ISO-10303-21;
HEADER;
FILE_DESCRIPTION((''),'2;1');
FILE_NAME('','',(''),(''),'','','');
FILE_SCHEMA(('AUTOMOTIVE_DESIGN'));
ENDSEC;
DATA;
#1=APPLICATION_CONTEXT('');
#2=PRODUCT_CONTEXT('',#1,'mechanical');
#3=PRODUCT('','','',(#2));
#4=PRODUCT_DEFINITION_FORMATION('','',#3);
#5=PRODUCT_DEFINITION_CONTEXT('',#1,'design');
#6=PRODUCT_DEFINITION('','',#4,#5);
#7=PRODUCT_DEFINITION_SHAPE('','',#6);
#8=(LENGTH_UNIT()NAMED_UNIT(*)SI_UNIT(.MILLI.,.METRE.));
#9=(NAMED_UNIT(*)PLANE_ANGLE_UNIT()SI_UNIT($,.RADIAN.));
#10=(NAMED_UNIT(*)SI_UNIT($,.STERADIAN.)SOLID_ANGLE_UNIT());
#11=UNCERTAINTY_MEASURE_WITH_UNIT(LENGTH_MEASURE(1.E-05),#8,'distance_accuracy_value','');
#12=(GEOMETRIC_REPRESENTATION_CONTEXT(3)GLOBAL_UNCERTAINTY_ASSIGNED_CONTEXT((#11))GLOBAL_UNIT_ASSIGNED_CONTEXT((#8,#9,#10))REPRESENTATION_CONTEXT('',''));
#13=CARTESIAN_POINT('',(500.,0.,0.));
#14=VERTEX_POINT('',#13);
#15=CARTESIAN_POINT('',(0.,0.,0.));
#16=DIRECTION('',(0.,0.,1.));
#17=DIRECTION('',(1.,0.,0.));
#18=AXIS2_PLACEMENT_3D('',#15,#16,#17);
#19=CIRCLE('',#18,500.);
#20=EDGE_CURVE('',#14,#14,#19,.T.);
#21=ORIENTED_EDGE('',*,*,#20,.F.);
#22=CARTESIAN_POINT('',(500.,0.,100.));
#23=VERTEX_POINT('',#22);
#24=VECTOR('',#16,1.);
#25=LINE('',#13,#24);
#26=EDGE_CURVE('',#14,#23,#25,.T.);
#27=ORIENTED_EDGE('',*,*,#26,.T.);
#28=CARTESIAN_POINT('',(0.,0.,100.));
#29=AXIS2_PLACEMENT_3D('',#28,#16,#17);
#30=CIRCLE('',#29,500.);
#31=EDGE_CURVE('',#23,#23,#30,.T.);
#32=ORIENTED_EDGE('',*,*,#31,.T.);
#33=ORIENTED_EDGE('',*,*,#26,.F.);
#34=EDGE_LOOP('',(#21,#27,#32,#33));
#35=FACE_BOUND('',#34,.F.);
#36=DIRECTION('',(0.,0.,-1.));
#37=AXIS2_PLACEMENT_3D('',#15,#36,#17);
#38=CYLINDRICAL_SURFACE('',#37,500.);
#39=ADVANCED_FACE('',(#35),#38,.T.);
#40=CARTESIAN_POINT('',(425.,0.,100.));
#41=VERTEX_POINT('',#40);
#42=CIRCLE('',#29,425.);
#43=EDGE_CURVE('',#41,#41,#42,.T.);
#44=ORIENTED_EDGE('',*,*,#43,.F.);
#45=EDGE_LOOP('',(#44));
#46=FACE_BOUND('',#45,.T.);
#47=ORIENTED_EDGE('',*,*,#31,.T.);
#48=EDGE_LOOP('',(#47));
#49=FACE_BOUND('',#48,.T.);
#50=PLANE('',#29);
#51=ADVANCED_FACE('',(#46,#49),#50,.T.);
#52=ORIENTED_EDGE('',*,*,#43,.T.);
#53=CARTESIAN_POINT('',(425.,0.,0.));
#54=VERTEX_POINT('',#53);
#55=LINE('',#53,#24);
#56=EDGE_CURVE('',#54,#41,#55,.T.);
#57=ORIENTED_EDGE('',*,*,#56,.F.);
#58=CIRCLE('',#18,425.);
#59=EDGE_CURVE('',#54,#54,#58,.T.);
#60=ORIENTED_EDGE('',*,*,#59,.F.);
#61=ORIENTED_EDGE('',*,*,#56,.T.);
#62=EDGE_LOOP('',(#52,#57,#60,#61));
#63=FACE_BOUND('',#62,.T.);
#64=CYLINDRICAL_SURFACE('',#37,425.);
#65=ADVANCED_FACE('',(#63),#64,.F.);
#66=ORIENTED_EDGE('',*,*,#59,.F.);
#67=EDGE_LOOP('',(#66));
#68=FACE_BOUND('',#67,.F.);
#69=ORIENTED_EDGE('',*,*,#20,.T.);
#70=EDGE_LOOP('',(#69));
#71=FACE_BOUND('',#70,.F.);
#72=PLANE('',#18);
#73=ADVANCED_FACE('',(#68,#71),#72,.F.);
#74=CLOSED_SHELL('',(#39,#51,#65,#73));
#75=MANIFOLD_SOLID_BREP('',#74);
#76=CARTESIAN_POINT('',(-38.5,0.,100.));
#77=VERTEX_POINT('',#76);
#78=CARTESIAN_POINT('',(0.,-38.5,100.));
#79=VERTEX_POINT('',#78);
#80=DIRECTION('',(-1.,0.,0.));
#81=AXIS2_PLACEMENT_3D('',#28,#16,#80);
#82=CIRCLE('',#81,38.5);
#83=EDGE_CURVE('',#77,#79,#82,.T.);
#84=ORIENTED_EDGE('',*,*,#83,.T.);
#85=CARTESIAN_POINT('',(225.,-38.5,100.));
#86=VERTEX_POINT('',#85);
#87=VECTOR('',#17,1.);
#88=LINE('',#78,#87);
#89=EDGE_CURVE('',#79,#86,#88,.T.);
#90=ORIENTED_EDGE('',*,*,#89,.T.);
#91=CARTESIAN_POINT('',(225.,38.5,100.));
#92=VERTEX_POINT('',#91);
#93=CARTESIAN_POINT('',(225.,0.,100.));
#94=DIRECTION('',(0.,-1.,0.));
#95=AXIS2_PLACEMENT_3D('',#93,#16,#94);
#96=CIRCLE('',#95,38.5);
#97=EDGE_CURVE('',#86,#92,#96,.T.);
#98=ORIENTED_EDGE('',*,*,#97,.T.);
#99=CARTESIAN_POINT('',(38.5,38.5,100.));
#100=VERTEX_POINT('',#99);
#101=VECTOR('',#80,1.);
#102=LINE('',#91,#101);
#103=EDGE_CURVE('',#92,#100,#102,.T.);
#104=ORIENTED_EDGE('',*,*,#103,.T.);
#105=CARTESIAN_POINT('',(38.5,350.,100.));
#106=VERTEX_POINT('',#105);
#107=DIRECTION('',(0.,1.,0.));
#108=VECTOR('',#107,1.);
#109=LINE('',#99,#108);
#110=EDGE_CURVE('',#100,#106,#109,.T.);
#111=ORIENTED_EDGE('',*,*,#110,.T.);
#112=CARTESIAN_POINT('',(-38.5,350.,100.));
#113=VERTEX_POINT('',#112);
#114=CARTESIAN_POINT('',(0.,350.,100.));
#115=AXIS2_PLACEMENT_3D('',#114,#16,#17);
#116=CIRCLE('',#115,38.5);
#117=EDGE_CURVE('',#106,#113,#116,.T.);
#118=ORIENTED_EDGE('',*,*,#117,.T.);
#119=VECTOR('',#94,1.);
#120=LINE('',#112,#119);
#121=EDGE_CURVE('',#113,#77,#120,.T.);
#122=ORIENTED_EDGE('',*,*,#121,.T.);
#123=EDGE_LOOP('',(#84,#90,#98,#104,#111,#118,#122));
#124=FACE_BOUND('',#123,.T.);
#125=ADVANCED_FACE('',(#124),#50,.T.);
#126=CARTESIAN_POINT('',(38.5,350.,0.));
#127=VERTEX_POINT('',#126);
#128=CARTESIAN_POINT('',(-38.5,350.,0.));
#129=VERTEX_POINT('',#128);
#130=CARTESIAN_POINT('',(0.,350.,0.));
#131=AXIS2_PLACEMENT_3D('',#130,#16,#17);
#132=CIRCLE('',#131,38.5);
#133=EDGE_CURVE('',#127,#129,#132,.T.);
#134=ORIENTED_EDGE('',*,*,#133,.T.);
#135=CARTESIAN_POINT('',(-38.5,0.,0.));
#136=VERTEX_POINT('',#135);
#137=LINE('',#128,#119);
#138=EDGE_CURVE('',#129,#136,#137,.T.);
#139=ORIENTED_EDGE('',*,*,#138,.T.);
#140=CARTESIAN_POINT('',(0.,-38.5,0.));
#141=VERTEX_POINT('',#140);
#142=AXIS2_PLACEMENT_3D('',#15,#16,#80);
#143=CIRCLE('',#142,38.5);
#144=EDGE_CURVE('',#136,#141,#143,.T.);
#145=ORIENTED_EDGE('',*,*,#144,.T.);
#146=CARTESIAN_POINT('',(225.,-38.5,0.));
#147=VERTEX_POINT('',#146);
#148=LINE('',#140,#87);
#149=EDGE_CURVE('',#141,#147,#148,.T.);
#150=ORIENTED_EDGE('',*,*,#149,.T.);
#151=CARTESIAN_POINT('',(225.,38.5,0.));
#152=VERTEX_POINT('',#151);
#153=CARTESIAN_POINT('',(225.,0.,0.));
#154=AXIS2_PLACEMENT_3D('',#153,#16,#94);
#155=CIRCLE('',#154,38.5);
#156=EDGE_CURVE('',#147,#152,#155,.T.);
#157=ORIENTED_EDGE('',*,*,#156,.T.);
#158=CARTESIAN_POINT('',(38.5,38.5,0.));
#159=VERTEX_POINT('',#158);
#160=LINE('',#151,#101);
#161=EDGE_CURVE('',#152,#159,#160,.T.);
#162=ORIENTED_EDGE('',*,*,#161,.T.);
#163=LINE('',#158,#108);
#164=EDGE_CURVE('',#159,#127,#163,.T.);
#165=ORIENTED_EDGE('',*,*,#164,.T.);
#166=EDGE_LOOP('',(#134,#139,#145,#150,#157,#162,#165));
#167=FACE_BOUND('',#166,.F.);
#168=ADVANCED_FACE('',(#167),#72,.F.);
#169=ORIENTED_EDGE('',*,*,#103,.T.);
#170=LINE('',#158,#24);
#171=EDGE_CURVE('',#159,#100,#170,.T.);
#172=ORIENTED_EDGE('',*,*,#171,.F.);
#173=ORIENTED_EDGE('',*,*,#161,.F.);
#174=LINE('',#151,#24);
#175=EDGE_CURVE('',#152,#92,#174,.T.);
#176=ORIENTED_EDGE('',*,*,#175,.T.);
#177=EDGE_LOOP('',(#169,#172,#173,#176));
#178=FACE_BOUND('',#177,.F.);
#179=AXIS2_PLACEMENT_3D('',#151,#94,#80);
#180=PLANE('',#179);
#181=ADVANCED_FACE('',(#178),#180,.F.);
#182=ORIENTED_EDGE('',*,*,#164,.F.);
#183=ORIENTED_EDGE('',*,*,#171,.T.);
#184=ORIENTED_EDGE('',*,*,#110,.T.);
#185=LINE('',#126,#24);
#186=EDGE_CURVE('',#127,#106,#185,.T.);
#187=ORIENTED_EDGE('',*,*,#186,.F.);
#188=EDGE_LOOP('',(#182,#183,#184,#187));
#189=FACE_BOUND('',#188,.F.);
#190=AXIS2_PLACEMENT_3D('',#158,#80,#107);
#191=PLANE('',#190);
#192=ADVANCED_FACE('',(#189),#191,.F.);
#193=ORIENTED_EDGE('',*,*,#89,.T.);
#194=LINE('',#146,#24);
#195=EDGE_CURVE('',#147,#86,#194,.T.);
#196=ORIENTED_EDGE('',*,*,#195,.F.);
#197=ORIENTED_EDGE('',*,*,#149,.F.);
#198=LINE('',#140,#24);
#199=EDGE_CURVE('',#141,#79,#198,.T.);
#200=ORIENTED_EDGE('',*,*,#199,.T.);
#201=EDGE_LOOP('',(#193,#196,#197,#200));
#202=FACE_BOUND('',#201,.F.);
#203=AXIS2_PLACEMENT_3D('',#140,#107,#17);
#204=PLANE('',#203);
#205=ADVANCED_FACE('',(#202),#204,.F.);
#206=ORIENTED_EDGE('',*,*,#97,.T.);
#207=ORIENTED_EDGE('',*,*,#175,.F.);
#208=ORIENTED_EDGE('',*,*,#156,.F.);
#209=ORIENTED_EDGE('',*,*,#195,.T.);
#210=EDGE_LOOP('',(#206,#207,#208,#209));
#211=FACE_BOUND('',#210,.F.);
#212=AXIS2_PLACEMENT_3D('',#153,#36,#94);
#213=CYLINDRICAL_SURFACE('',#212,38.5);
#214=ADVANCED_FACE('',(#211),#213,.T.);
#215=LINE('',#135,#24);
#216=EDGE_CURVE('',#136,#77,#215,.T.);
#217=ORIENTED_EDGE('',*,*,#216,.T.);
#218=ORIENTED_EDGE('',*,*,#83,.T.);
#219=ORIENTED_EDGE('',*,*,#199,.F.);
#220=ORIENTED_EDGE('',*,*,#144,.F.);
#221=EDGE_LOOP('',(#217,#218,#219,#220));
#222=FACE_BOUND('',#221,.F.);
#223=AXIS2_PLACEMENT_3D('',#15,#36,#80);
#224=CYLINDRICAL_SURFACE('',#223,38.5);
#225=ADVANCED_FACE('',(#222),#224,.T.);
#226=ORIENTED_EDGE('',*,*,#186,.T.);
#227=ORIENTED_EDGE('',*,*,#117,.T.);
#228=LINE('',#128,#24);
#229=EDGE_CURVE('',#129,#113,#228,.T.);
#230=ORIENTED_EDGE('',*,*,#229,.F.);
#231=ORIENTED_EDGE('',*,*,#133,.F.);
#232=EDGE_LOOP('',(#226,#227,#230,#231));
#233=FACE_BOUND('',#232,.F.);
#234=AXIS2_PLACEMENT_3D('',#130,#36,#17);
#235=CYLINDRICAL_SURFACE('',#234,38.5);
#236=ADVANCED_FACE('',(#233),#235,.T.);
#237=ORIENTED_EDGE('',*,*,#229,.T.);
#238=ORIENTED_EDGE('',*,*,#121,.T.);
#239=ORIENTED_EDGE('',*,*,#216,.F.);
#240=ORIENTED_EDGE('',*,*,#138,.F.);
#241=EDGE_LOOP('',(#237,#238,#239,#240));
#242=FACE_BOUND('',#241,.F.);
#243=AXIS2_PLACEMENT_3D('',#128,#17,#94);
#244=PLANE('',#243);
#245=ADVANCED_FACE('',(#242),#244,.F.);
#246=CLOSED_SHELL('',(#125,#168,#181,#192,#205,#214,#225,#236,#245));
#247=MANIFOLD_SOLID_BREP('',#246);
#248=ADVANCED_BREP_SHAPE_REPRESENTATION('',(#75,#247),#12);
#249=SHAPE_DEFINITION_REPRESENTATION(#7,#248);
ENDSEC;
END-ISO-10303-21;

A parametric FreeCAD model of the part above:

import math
import FreeCAD as App
import Part
import Sketcher
Q = App.Units.Quantity

doc = App.newDocument("Part")
body = doc.addObject("PartDesign::Body", "Body")
body.AllowCompound = True

# Sketch on XY plane
sketch1 = body.newObject("Sketcher::SketchObject", "Sketch")
sketch1.AttachmentSupport = (doc.getObject("XY_Plane"), [""])
sketch1.MapMode = "FlatFace"
sketch1.addGeometry([
    Part.LineSegment(App.Vector(225, 38, 0), App.Vector(38, 38, 0)),  # 0
    Part.LineSegment(App.Vector(38, 38, 0), App.Vector(38, 350, 0)),  # 1
    Part.ArcOfCircle(Part.Circle(App.Vector(0, 350, 0), App.Vector(0, 0, 1), 38), math.radians(0), math.radians(180)),  # 2
    Part.LineSegment(App.Vector(-38, 350, 0), App.Vector(-38, 0, 0)),  # 3
    Part.ArcOfCircle(Part.Circle(App.Vector(0, 0, 0), App.Vector(0, 0, 1), 38), math.radians(180), math.radians(270)),  # 4
    Part.LineSegment(App.Vector(0, -38, 0), App.Vector(225, -38, 0)),  # 5
    Part.ArcOfCircle(Part.Circle(App.Vector(225, 0, 0), App.Vector(0, 0, 1), 38), math.radians(-90), math.radians(90)),  # 6
    Part.Circle(App.Vector(0, 0, 0), App.Vector(0, 0, 1), 500),  # 7
    Part.Circle(App.Vector(0, 0, 0), App.Vector(0, 0, 1), 425),  # 8
], False)
sketch1.addConstraint([
    Sketcher.Constraint("Coincident", 0, 2, 1, 1),
    Sketcher.Constraint("Tangent", 1, 2, 2, 1),
    Sketcher.Constraint("Tangent", 2, 2, 3, 1),
    Sketcher.Constraint("Tangent", 3, 2, 4, 1),
    Sketcher.Constraint("Tangent", 4, 2, 5, 1),
    Sketcher.Constraint("Tangent", 5, 2, 6, 1),
    Sketcher.Constraint("Tangent", 6, 2, 0, 1),
    Sketcher.Constraint("Horizontal", 0),
    Sketcher.Constraint("Vertical", 1),
    Sketcher.Constraint("Vertical", 3),
    Sketcher.Constraint("Horizontal", 5),
    Sketcher.Constraint("Coincident", 4, 3, -1, 1),
    Sketcher.Constraint("Coincident", 7, 3, -1, 1),
    Sketcher.Constraint("Coincident", 8, 3, -1, 1),
    Sketcher.Constraint("Equal", 2, 4),
    Sketcher.Constraint("Equal", 4, 6),
    Sketcher.Constraint("Diameter", 7, Q("1000 mm")),
    Sketcher.Constraint("Radius", 2, Q("38.5 mm")),
    Sketcher.Constraint("DistanceX", 5, 1, 5, 2, Q("225 mm")),
    Sketcher.Constraint("DistanceY", 3, 2, 3, 1, Q("350 mm")),
    Sketcher.Constraint("Diameter", 8, Q("850 mm")),
])
pad1 = body.newObject("PartDesign::Pad", "Pad")
pad1.Profile = sketch1
pad1.Length = 100

doc.recompute()
